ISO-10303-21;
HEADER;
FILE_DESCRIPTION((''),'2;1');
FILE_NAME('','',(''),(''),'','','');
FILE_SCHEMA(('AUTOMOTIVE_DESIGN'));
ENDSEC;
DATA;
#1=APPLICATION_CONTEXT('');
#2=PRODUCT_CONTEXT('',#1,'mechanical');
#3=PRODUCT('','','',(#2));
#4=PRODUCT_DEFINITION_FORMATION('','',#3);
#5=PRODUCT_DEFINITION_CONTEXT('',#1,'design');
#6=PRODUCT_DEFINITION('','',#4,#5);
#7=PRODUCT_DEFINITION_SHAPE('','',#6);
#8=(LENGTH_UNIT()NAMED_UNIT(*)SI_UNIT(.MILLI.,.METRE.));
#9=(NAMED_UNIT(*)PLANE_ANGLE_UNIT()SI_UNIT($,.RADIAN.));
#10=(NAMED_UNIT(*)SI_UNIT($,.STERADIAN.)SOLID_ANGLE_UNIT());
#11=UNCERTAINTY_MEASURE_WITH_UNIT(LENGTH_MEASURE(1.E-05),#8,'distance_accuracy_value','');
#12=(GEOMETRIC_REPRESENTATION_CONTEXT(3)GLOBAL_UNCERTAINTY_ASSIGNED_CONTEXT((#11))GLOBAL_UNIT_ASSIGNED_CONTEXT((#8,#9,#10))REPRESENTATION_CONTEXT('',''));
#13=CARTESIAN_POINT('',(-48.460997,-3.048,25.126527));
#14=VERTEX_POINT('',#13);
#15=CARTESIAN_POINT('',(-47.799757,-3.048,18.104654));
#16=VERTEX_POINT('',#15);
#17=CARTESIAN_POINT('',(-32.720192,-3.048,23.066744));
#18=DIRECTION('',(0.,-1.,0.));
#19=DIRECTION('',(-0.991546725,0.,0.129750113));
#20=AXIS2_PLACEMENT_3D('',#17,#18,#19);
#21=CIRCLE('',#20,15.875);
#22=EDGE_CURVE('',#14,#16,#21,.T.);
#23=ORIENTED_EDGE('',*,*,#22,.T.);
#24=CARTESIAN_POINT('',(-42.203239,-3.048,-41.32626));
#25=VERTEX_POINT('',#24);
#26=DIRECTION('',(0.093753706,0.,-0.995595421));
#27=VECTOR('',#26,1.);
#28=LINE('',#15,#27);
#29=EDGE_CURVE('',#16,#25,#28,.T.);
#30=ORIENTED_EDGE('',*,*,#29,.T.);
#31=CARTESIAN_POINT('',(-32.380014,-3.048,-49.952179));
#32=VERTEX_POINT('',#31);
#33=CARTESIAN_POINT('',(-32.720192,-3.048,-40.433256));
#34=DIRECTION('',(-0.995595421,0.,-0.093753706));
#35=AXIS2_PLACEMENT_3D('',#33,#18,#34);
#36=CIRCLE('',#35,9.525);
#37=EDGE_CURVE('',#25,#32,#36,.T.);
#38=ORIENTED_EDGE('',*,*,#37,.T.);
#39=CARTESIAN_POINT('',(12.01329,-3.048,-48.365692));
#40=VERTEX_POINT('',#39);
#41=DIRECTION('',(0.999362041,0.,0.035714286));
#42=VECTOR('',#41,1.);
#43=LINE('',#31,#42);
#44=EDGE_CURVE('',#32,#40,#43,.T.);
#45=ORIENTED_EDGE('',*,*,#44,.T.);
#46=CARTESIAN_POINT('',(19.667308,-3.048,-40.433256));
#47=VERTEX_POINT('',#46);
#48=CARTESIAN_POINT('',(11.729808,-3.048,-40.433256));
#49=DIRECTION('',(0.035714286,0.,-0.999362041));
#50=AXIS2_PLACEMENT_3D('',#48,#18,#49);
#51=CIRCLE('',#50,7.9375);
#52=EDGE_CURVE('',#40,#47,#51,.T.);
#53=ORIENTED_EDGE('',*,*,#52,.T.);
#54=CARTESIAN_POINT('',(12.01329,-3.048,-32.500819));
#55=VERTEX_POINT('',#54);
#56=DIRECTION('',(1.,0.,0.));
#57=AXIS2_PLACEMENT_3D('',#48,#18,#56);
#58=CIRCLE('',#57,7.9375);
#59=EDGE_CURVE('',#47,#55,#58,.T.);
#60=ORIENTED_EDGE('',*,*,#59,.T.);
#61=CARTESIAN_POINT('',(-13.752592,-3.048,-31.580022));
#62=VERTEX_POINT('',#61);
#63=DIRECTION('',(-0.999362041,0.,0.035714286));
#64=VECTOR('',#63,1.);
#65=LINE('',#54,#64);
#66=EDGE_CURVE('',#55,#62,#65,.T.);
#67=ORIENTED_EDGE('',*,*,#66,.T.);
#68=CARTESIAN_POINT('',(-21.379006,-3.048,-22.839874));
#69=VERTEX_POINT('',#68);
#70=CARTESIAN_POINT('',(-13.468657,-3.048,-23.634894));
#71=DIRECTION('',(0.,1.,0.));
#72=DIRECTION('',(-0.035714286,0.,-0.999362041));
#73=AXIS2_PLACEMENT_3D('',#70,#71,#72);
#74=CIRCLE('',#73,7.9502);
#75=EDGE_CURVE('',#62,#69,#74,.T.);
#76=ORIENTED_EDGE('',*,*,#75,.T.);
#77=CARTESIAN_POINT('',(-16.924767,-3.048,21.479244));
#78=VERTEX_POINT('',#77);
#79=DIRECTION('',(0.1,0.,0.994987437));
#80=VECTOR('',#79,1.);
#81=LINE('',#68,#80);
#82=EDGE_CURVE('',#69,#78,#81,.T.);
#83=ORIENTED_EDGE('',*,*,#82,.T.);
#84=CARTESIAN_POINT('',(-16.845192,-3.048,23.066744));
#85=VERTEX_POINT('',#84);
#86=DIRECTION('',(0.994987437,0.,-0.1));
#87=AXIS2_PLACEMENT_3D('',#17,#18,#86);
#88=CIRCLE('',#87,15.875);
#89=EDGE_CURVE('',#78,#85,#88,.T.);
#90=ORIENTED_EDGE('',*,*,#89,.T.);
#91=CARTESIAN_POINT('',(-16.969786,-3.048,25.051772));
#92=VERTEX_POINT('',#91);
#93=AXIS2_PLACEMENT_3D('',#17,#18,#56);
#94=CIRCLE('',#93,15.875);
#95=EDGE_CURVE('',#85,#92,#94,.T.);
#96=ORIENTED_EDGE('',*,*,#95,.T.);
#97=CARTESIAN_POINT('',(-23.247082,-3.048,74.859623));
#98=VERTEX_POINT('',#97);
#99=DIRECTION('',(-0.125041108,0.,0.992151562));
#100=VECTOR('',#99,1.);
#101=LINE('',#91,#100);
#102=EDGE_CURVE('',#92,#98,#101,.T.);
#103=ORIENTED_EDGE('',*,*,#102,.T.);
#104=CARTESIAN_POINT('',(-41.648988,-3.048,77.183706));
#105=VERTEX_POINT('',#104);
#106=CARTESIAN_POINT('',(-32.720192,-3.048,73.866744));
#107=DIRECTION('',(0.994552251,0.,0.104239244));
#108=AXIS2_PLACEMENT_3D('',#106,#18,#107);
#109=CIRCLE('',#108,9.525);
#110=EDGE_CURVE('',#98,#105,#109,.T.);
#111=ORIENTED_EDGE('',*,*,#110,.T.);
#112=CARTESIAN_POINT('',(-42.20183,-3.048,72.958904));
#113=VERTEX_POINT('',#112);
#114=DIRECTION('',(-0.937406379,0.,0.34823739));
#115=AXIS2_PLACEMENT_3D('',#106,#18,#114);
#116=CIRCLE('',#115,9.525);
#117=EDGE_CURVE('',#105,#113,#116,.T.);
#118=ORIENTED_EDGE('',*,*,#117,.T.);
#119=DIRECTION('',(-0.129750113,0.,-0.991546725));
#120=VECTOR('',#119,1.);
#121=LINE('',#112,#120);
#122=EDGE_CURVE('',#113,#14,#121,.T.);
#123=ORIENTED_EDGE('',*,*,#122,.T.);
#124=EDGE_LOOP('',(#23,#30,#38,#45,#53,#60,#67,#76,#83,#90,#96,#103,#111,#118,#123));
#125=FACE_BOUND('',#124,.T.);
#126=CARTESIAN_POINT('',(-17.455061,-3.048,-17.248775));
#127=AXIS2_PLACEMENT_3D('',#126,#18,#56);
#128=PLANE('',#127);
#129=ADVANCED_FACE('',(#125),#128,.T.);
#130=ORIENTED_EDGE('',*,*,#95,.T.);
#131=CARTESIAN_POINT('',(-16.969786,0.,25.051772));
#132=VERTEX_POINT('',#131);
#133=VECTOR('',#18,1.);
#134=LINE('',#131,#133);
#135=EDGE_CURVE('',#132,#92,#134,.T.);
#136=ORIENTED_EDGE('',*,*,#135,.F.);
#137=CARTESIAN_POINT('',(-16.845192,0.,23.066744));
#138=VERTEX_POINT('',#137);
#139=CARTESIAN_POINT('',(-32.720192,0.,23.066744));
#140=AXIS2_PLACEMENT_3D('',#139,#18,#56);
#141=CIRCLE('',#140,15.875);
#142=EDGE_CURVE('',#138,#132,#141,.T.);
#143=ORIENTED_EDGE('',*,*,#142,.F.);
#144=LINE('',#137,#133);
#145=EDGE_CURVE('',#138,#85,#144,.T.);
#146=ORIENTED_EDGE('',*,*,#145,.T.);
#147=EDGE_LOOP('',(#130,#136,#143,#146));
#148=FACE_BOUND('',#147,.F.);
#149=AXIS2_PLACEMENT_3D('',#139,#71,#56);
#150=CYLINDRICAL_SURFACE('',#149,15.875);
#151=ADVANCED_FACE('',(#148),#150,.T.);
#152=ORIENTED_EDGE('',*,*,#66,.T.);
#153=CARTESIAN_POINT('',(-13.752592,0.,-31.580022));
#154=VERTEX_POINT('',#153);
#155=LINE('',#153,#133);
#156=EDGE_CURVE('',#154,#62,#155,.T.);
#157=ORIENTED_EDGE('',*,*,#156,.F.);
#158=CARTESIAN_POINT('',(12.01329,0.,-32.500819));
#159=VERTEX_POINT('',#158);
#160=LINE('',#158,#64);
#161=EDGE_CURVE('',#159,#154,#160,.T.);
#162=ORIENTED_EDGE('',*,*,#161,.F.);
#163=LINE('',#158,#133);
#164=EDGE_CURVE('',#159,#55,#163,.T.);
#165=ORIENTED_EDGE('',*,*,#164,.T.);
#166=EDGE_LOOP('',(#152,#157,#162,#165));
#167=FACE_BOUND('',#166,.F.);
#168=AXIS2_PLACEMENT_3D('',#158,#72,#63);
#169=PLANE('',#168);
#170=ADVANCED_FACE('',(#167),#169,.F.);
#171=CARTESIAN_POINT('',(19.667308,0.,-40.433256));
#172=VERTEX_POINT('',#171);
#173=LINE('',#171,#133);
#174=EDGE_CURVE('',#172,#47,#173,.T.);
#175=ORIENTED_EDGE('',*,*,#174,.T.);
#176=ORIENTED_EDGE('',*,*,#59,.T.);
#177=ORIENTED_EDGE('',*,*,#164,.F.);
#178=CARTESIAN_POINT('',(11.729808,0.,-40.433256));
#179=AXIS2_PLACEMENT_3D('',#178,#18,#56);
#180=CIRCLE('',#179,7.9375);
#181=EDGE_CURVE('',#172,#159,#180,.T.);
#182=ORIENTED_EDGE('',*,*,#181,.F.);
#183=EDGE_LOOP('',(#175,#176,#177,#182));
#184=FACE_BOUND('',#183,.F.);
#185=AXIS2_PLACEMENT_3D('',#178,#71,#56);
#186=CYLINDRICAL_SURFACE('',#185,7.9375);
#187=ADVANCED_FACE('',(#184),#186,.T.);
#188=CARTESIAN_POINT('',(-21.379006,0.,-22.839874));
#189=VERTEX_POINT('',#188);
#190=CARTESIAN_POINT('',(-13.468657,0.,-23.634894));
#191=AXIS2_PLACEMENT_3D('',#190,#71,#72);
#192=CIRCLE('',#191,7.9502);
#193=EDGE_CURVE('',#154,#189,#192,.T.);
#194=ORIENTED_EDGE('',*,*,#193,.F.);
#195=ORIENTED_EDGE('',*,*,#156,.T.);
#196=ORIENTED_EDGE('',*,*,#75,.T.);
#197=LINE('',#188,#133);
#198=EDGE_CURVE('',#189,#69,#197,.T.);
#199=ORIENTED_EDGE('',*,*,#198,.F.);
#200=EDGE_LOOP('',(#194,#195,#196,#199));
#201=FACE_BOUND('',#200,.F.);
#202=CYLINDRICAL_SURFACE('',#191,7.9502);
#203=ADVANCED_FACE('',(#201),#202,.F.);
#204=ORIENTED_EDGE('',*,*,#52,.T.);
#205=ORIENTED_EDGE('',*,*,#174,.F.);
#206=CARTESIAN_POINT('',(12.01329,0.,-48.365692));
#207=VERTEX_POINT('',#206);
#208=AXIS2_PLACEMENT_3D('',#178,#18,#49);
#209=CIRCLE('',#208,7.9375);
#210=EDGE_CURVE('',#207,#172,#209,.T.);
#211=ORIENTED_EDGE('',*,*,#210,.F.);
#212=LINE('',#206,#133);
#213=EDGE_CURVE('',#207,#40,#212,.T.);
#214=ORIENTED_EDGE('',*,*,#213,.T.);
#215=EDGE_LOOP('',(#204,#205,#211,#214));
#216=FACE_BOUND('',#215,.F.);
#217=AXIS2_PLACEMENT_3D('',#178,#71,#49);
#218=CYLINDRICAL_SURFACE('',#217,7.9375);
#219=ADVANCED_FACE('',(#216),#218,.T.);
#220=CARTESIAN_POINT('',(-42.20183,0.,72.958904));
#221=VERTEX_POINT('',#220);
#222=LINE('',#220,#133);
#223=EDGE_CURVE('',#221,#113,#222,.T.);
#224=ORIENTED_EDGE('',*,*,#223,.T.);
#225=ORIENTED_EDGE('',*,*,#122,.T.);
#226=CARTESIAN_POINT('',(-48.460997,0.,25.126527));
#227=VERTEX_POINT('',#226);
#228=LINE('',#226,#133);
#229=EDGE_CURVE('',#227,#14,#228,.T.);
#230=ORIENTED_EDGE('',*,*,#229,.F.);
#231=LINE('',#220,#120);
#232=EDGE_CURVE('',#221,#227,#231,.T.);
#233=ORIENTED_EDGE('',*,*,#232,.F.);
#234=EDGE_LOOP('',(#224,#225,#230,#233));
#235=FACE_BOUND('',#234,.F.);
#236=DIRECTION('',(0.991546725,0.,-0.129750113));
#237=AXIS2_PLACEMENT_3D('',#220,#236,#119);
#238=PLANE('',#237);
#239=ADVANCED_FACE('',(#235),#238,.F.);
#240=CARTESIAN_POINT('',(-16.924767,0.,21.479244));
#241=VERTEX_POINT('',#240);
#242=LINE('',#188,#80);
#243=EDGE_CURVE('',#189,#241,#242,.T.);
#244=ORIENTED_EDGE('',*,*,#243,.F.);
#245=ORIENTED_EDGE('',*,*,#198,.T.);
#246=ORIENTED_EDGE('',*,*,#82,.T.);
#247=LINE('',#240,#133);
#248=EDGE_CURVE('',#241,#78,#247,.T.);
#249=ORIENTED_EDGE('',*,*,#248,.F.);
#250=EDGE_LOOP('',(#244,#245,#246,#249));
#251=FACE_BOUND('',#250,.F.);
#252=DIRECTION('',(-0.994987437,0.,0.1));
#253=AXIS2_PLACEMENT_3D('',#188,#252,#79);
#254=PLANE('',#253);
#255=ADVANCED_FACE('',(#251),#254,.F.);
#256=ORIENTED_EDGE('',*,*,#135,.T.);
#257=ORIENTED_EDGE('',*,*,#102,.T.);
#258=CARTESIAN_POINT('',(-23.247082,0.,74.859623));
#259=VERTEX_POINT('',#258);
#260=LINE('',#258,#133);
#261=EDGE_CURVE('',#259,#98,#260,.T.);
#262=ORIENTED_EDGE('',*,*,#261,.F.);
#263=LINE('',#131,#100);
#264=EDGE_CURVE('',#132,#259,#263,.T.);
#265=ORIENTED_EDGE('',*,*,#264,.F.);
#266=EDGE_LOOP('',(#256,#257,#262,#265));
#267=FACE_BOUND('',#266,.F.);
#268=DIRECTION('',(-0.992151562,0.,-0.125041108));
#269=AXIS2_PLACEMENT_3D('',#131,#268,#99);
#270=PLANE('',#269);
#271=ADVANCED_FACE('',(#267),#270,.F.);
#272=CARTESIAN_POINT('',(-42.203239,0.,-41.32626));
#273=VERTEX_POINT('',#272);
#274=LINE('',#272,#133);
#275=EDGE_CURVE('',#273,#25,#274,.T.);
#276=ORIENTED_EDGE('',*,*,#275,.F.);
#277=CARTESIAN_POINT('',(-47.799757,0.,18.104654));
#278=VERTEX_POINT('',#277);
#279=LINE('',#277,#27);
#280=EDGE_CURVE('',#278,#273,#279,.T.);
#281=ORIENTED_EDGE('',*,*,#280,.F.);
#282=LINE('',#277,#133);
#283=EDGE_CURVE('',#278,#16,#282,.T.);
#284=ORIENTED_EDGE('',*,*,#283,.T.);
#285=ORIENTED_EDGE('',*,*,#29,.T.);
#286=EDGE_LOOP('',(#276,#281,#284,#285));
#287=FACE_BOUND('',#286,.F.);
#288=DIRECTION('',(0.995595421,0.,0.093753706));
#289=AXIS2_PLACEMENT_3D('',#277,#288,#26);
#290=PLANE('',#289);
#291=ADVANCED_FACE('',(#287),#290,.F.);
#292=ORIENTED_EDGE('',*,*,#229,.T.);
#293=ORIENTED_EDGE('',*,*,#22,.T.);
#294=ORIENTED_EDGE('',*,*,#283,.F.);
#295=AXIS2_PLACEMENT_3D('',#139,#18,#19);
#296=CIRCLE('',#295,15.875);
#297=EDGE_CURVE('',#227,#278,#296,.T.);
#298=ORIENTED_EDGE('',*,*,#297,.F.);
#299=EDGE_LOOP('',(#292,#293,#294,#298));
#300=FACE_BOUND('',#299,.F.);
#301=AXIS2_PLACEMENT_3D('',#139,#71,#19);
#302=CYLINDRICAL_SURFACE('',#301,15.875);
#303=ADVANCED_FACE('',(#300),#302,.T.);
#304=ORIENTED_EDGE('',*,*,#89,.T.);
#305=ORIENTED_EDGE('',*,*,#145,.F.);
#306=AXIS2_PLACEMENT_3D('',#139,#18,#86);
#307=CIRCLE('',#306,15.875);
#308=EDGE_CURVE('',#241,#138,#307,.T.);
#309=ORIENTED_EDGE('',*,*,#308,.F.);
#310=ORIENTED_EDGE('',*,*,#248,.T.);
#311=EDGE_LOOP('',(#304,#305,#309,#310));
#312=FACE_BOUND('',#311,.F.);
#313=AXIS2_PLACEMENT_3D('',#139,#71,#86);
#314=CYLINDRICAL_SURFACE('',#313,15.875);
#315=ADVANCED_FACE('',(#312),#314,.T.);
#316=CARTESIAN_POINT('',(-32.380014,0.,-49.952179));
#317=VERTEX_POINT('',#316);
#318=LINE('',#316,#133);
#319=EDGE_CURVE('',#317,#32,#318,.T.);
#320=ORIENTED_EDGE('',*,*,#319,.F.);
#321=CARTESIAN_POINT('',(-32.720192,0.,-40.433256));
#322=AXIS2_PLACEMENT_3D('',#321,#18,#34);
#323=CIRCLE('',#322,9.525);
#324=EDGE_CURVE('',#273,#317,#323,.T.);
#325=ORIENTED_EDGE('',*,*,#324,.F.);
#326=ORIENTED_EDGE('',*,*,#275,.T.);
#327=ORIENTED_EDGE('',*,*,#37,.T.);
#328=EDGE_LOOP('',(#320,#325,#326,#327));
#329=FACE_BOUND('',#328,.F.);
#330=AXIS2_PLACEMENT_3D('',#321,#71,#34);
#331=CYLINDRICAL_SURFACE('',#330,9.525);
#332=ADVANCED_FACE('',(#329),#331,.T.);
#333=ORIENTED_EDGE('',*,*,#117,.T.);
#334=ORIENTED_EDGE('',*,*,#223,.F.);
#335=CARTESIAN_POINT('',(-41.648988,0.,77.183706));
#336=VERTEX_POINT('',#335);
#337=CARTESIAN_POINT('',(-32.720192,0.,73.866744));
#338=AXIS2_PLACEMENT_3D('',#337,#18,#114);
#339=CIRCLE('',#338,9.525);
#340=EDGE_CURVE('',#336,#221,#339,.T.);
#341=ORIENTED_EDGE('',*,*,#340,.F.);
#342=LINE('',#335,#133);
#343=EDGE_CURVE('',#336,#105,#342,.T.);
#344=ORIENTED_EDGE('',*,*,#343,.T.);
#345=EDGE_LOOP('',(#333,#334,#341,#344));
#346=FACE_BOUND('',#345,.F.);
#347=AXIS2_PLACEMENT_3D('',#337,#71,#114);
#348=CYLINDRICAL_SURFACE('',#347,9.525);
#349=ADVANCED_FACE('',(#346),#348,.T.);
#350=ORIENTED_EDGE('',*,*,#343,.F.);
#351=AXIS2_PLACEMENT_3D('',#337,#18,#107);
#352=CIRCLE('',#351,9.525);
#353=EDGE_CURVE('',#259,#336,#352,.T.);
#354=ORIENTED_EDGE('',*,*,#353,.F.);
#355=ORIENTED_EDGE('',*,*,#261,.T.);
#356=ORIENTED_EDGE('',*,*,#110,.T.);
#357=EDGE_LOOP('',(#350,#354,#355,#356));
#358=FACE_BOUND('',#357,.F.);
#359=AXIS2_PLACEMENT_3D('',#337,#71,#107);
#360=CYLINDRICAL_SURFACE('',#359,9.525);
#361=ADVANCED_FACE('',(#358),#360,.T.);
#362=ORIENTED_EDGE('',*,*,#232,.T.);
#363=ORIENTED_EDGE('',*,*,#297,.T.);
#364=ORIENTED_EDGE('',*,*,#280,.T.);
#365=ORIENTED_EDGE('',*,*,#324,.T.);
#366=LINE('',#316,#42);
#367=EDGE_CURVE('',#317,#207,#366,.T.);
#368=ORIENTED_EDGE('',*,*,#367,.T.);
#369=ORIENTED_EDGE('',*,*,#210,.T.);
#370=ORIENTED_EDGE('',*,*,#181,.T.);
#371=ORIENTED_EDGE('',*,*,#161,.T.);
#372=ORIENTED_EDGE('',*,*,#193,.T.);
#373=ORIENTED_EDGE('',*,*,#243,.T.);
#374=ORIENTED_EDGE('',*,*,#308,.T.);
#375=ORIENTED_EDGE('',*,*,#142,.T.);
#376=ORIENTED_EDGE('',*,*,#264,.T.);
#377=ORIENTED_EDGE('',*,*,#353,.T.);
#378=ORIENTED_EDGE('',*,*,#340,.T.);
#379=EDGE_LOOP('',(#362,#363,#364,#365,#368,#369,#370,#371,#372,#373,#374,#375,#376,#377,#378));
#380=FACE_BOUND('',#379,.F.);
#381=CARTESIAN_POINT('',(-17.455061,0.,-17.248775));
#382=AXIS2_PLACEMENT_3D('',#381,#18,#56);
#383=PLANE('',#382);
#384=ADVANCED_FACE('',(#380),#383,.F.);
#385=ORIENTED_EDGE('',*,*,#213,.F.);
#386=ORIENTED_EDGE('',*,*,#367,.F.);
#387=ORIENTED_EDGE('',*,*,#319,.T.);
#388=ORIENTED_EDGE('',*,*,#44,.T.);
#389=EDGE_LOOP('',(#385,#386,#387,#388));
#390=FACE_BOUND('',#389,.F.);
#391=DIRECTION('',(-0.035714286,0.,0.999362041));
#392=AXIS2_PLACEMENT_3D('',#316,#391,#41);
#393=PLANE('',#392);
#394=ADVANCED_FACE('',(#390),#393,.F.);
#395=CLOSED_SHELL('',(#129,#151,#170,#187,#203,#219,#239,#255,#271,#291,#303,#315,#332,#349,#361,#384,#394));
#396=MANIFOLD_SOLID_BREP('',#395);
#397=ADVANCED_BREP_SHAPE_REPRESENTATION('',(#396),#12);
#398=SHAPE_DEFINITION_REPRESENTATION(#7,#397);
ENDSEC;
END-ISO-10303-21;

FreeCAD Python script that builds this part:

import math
import FreeCAD as App
import Part
import Sketcher

V = App.Vector
Q = App.Units.Quantity

doc = App.newDocument("Part")
body = doc.addObject("PartDesign::Body", "Body")

# Sketch on XZ plane
sketch1 = body.newObject("Sketcher::SketchObject", "Sketch")
sketch1.AttachmentSupport = (doc.getObject("XZ_Plane"), [""])
sketch1.MapMode = "FlatFace"
sketch1.addGeometry([
    Part.LineSegment(V(-47.799757, 18.104654, 0), V(-42.203239, -41.32626, 0)),  # 0
    Part.ArcOfCircle(Part.Circle(V(-32.720192, -40.433256, 0), V(0, 0, 1), 9.525), math.radians(-174.620408), math.radians(-87.953287)),  # 1
    Part.LineSegment(V(-32.380014, -49.952179, 0), V(12.01329, -48.365692, 0)),  # 2
    Part.ArcOfCircle(Part.Circle(V(11.729808, -40.433256, 0), V(0, 0, 1), 7.9375), math.radians(-87.953287), math.radians(0)),  # 3
    Part.ArcOfCircle(Part.Circle(V(11.729808, -40.433256, 0), V(0, 0, 1), 7.9375), math.radians(0), math.radians(87.953287)),  # 4
    Part.LineSegment(V(12.01329, -32.500819, 0), V(-13.752592, -31.580022, 0)),  # 5
    Part.ArcOfCircle(Part.Circle(V(-13.468657, -23.634894, 0), V(0, 0, 1), 7.9502), math.radians(174.26083), math.radians(267.953287)),  # 6
    Part.LineSegment(V(-21.379006, -22.839874, 0), V(-16.924767, 21.479244, 0)),  # 7
    Part.ArcOfCircle(Part.Circle(V(-32.720192, 23.066744, 0), V(0, 0, 1), 15.875), math.radians(-5.73917), math.radians(0)),  # 8
    Part.ArcOfCircle(Part.Circle(V(-32.720192, 23.066744, 0), V(0, 0, 1), 15.875), math.radians(0), math.radians(7.18313)),  # 9
    Part.LineSegment(V(-16.969786, 25.051772, 0), V(-23.247082, 74.859623, 0)),  # 10
    Part.ArcOfCircle(Part.Circle(V(-32.720192, 73.866744, 0), V(0, 0, 1), 9.525), math.radians(5.983338), math.radians(159.620456)),  # 11
    Part.ArcOfCircle(Part.Circle(V(-32.720192, 73.866744, 0), V(0, 0, 1), 9.525), math.radians(159.620456), math.radians(185.469239)),  # 12
    Part.LineSegment(V(-42.20183, 72.958904, 0), V(-48.460997, 25.126527, 0)),  # 13
    Part.ArcOfCircle(Part.Circle(V(-32.720192, 23.066744, 0), V(0, 0, 1), 15.875), math.radians(172.544847), math.radians(198.214337)),  # 14
], False)
sketch1.addConstraint([
    Sketcher.Constraint("Tangent", 0, 2, 1, 1),
    Sketcher.Constraint("Tangent", 1, 2, 2, 1),
    Sketcher.Constraint("Tangent", 2, 2, 3, 1),
    Sketcher.Constraint("Tangent", 3, 2, 4, 1),
    Sketcher.Constraint("Tangent", 4, 2, 5, 1),
    Sketcher.Constraint("Tangent", 5, 2, 6, 2),
    Sketcher.Constraint("Tangent", 6, 1, 7, 1),
    Sketcher.Constraint("Tangent", 7, 2, 8, 1),
    Sketcher.Constraint("Tangent", 8, 2, 9, 1),
    Sketcher.Constraint("Tangent", 9, 2, 10, 1),
    Sketcher.Constraint("Coincident", 10, 2, 11, 1),
    Sketcher.Constraint("Tangent", 11, 2, 12, 1),
    Sketcher.Constraint("Coincident", 12, 2, 13, 1),
    Sketcher.Constraint("Tangent", 13, 2, 14, 1),
    Sketcher.Constraint("Coincident", 14, 2, 0, 1),
    Sketcher.Constraint("Coincident", 14, 3, 8, 3),
    Sketcher.Constraint("Equal", 3, 4),
    Sketcher.Constraint("Equal", 8, 9),
    Sketcher.Constraint("Equal", 1, 11),
    Sketcher.Constraint("Equal", 11, 12),
    Sketcher.Constraint("Equal", 9, 14),
    Sketcher.Constraint("Horizontal", 1, 3, 3, 3),
    Sketcher.Constraint("Horizontal", 4, 3, 3, 2),
    Sketcher.Constraint("Horizontal", 14, 3, 8, 2),
    Sketcher.Constraint("Vertical", 1, 3, 8, 3),
    Sketcher.Constraint("Vertical", 9, 3, 11, 3),
    Sketcher.Constraint("Vertical", 2, 2, 4, 2),
    Sketcher.Constraint("Radius", 1, Q("0.375 in")),
    Sketcher.Constraint("Radius", 3, Q("0.3125 in")),
    Sketcher.Constraint("Radius", 6, Q("0.313 in")),
    Sketcher.Constraint("Radius", 8, Q("0.625 in")),
    Sketcher.Constraint("DistanceY", 8, 3, 11, 3, Q("2 in")),
    Sketcher.Constraint("DistanceY", 1, 3, 8, 3, Q("2.5 in")),
    Sketcher.Constraint("DistanceX", 1, 3, 3, 3, Q("1.75 in")),
    Sketcher.Constraint("DistanceY", 7, 2, 8, 3, Q("0.0625 in")),
    Sketcher.Constraint("DistanceY", 12, 2, 11, 2, 4.224802),
    Sketcher.Constraint("Distance", 0, 59.69384),
    Sketcher.Constraint("DistanceX", 0, 2, -1, 1, 42.203239),
    Sketcher.Constraint("DistanceY", 0, 2, -1, 1, 41.32626),
    Sketcher.Constraint("DistanceX", 11, 2, -1, 1, 41.648988),
    Sketcher.Constraint("DistanceX", 12, 3, 10, 2, 9.47311),
])
pad1 = body.newObject("PartDesign::Pad", "Pad")
pad1.Profile = sketch1
pad1.Length = Q("0.12 in")

doc.recompute()
